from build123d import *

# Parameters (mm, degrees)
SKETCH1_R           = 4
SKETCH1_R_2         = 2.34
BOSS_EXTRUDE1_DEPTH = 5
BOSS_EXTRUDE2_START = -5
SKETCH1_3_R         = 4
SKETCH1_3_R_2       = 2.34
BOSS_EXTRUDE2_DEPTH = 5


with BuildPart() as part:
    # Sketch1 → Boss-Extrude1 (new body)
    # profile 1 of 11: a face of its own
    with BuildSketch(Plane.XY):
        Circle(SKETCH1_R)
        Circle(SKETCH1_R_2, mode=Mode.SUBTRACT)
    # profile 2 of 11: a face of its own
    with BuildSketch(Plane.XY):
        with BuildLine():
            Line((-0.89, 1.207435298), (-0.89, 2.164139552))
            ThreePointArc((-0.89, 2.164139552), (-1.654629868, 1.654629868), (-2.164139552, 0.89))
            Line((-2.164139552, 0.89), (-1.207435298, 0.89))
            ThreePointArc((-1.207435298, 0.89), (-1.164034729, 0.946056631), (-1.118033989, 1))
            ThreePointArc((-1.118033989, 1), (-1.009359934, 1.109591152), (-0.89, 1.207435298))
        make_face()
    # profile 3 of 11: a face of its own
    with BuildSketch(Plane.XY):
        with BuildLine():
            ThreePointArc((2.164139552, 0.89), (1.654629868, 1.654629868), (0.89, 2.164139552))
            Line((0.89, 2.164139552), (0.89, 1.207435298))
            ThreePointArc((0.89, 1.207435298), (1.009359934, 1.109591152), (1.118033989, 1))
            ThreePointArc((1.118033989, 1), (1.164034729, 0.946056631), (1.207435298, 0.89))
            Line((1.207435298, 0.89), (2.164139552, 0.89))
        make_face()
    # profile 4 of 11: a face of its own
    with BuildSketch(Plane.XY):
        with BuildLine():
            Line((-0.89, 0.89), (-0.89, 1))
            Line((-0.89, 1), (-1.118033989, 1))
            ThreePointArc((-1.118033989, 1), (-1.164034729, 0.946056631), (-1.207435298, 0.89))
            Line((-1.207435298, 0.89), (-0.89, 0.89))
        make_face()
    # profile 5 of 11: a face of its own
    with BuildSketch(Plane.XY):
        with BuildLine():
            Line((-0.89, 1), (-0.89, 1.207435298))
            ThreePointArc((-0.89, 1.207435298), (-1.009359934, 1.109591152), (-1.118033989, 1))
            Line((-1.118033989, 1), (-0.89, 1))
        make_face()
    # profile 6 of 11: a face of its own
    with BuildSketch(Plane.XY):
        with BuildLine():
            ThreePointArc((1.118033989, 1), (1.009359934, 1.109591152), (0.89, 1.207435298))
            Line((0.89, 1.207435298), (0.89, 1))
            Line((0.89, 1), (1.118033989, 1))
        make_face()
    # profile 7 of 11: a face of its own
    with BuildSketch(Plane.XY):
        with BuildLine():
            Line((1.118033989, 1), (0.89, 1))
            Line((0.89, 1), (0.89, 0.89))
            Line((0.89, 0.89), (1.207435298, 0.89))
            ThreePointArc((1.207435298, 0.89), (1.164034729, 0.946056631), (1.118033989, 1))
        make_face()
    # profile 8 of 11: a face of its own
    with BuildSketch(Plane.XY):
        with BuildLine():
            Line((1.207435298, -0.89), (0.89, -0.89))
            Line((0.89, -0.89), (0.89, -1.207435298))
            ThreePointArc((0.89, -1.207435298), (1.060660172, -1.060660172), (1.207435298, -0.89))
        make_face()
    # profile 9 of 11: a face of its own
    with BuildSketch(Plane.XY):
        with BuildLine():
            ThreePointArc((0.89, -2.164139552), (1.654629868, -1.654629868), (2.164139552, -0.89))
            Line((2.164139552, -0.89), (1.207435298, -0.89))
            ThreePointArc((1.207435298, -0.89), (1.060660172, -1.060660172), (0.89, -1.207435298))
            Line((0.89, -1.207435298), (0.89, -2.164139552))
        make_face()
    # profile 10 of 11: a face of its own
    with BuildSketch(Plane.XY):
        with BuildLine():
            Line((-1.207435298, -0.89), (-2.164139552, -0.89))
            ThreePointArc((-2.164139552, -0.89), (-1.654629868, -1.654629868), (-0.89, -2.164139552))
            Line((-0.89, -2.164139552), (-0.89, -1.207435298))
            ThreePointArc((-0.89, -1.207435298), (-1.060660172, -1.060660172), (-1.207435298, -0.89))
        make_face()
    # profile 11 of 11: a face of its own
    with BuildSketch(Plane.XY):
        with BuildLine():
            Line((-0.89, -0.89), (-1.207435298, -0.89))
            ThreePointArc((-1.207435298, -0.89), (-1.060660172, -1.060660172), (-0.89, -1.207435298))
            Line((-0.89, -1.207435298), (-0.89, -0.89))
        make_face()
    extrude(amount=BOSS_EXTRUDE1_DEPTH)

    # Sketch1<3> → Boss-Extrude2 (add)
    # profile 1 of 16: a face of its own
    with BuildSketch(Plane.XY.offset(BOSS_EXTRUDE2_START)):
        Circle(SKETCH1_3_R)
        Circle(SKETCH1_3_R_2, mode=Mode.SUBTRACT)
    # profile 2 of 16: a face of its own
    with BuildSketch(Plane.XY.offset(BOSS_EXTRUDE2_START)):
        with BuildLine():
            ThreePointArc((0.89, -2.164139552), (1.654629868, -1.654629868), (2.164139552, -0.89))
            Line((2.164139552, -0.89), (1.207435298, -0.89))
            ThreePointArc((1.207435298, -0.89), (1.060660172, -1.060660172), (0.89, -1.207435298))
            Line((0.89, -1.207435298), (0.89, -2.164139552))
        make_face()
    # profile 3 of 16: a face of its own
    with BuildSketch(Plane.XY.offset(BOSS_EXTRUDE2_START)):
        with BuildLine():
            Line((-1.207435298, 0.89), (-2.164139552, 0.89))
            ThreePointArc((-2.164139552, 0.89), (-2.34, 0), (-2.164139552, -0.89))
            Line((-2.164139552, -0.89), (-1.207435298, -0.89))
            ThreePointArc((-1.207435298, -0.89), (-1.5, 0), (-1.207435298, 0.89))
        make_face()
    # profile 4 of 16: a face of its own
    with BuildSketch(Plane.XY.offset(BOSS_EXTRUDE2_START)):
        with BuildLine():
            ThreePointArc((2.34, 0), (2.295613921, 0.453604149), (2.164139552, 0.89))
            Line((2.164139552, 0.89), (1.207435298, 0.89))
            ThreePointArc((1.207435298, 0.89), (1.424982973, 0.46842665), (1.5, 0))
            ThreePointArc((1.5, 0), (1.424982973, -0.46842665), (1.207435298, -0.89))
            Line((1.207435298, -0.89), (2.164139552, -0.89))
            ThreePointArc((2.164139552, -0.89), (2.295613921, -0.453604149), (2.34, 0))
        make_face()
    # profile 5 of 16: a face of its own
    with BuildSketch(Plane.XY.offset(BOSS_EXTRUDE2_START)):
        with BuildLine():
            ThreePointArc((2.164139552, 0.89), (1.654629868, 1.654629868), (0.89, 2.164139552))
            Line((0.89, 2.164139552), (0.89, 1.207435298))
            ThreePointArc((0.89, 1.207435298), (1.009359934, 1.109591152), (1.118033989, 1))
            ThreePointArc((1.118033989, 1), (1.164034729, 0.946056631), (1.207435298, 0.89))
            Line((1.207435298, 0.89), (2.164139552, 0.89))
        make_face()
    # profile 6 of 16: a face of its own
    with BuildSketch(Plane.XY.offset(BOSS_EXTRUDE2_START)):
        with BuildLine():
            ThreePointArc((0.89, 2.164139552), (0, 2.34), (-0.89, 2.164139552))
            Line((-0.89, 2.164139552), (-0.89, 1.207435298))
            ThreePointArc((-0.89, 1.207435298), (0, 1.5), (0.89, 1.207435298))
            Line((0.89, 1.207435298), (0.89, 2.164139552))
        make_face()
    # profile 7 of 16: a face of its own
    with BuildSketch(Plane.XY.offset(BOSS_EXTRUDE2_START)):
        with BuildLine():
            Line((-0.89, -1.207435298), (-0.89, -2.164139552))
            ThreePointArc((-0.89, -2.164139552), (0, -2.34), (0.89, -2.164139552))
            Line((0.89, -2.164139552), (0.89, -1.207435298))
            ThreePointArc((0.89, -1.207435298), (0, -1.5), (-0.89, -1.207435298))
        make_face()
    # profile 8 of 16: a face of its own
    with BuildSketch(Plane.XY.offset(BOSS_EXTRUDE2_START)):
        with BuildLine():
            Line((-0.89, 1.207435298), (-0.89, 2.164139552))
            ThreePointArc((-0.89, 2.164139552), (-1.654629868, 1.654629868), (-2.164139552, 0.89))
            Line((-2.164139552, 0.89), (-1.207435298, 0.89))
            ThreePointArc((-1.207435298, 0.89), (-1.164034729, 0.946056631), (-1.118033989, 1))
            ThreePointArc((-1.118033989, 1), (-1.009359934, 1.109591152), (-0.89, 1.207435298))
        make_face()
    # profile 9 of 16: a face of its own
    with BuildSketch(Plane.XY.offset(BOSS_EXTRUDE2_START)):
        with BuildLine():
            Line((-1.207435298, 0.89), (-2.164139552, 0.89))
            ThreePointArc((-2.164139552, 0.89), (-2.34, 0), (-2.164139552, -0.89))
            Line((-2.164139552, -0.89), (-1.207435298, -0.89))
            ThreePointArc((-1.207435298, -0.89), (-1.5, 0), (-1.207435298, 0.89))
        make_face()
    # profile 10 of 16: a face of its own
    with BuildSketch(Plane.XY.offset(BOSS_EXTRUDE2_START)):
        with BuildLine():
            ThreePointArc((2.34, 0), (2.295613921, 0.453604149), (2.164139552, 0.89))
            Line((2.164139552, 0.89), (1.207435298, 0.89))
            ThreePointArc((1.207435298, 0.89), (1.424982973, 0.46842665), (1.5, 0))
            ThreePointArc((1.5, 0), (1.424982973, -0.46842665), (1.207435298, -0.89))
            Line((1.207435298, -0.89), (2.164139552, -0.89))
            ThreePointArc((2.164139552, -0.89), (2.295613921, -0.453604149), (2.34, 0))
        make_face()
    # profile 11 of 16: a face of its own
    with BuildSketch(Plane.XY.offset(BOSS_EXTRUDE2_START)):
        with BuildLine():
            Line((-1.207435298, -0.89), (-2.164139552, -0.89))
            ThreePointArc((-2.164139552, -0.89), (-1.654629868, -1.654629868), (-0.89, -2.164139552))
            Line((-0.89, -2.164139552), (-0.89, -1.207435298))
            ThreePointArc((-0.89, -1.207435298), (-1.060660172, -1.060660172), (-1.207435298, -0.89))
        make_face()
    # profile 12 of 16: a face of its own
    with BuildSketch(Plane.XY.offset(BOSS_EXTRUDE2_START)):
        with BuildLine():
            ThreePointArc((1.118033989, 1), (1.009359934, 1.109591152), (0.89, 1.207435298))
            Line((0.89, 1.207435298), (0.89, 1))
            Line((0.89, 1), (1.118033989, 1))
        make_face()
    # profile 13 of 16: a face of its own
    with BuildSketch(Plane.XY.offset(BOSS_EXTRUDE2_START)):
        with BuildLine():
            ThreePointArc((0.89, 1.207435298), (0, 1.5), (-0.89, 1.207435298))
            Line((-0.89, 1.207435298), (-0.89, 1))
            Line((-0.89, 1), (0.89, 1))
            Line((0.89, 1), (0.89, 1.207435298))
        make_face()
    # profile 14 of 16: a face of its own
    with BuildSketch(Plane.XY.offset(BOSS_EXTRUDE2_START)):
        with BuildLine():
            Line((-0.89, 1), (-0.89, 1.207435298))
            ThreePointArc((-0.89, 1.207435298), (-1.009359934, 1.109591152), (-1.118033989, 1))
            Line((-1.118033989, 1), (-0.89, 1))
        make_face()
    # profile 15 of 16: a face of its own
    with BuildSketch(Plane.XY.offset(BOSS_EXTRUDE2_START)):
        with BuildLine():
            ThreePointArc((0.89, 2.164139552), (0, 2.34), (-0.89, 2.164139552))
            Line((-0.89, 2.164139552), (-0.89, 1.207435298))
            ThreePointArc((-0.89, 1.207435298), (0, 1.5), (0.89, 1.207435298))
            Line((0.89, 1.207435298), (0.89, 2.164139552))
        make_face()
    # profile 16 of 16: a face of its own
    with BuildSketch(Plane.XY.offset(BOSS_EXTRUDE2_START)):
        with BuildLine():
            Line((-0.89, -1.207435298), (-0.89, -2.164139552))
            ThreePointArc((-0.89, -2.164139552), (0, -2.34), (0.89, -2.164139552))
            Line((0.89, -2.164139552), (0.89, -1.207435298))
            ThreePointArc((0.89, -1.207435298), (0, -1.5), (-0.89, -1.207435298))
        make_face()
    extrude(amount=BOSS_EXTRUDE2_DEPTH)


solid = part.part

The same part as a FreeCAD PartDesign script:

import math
import FreeCAD as App
import Part
import Sketcher
from FreeCAD import Vector

doc = App.newDocument("Part")
params = doc.addObject("Spreadsheet::Sheet", "Params")
for row, (alias, value) in enumerate([
    ("sketch1_diameter", "8 mm"),
    ("sketch1_radius", "2.34 mm"),
    ("pad1_length", "5 mm"),
    ("sketch2_diameter", "8 mm"),
    ("sketch2_radius", "1.5 mm"),
    ("pad2_length", "5 mm"),
], start=1):
    params.set(f"A{row}", alias)
    params.set(f"B{row}", "=" + value)
    params.setAlias(f"B{row}", alias)

body = doc.addObject("PartDesign::Body", "Body")

# Sketch on XY plane
sketch1 = doc.addObject("Sketcher::SketchObject", "Sketch")
body.addObject(sketch1)
sketch1.AttachmentSupport = (doc.XY_Plane, [""])
sketch1.MapMode = "FlatFace"
sketch1.addGeometry([
    Part.Circle(Vector(0, 0, 0), Vector(0, 0, 1), 4),  # 0
    Part.ArcOfCircle(Part.Circle(Vector(0, 0, 0), Vector(0, 0, 1), 2.34), math.radians(-22.354861), math.radians(22.354861)),  # 1
    Part.LineSegment(Vector(2.16414, -0.89, 0), Vector(0.89, -0.89, 0)),  # 2
    Part.LineSegment(Vector(0.89, -0.89, 0), Vector(0.89, -2.16414, 0)),  # 3
    Part.ArcOfCircle(Part.Circle(Vector(0, 0, 0), Vector(0, 0, 1), 2.34), math.radians(-112.354861), math.radians(-67.645139)),  # 4
    Part.LineSegment(Vector(-0.89, -2.16414, 0), Vector(-0.89, -0.89, 0)),  # 5
    Part.LineSegment(Vector(-0.89, -0.89, 0), Vector(-2.16414, -0.89, 0)),  # 6
    Part.ArcOfCircle(Part.Circle(Vector(0, 0, 0), Vector(0, 0, 1), 2.34), math.radians(157.645139), math.radians(202.354861)),  # 7
    Part.LineSegment(Vector(-2.16414, 0.89, 0), Vector(-0.89, 0.89, 0)),  # 8
    Part.LineSegment(Vector(-0.89, 0.89, 0), Vector(-0.89, 2.16414, 0)),  # 9
    Part.ArcOfCircle(Part.Circle(Vector(0, 0, 0), Vector(0, 0, 1), 2.34), math.radians(67.645139), math.radians(112.354861)),  # 10
    Part.LineSegment(Vector(0.89, 2.16414, 0), Vector(0.89, 0.89, 0)),  # 11
    Part.LineSegment(Vector(0.89, 0.89, 0), Vector(2.16414, 0.89, 0)),  # 12
], False)
sketch1.addConstraint([
    Sketcher.Constraint("Coincident", 1, 1, 2, 1),
    Sketcher.Constraint("Coincident", 2, 2, 3, 1),
    Sketcher.Constraint("Coincident", 3, 2, 4, 2),
    Sketcher.Constraint("Coincident", 4, 1, 5, 1),
    Sketcher.Constraint("Coincident", 5, 2, 6, 1),
    Sketcher.Constraint("Coincident", 6, 2, 7, 2),
    Sketcher.Constraint("Coincident", 7, 1, 8, 1),
    Sketcher.Constraint("Coincident", 8, 2, 9, 1),
    Sketcher.Constraint("Coincident", 9, 2, 10, 2),
    Sketcher.Constraint("Coincident", 10, 1, 11, 1),
    Sketcher.Constraint("Coincident", 11, 2, 12, 1),
    Sketcher.Constraint("Coincident", 12, 2, 1, 2),
    Sketcher.Constraint("Horizontal", 2),
    Sketcher.Constraint("Vertical", 3),
    Sketcher.Constraint("Vertical", 5),
    Sketcher.Constraint("Horizontal", 6),
    Sketcher.Constraint("Horizontal", 8),
    Sketcher.Constraint("Vertical", 9),
    Sketcher.Constraint("Vertical", 11),
    Sketcher.Constraint("Horizontal", 12),
    Sketcher.Constraint("Coincident", 0, 3, -1, 1),
    Sketcher.Constraint("Coincident", 1, 3, -1, 1),
    Sketcher.Constraint("Coincident", 4, 3, -1, 1),
    Sketcher.Constraint("Coincident", 7, 3, -1, 1),
    Sketcher.Constraint("Coincident", 10, 3, -1, 1),
    Sketcher.Constraint("Equal", 1, 4),
    Sketcher.Constraint("Equal", 4, 7),
    Sketcher.Constraint("Equal", 7, 10),
    Sketcher.Constraint("Symmetric", 2, 2, 8, 2, -1, 1),
    Sketcher.Constraint("Symmetric", 5, 2, 11, 2, -1, 1),
    Sketcher.Constraint("Symmetric", 2, 2, 5, 2, -2),
    Sketcher.Constraint("Equal", 12, 3),
    Sketcher.Constraint("Diameter", 0, 8.0),
    Sketcher.Constraint("Radius", 1, 2.34),
    Sketcher.Constraint("DistanceY", 1, 1, -1, 1, 0.89),
])
sketch1.setExpression("Constraints[32]", "Params.sketch1_diameter")
sketch1.setExpression("Constraints[33]", "Params.sketch1_radius")
pad1 = doc.addObject("PartDesign::Pad", "Pad")
body.addObject(pad1)
pad1.Profile = sketch1
pad1.setExpression("Length", "Params.pad1_length")

# Sketch on XY plane
sketch2 = doc.addObject("Sketcher::SketchObject", "Sketch001")
body.addObject(sketch2)
sketch2.AttachmentSupport = (doc.XY_Plane, [""])
sketch2.MapMode = "FlatFace"
sketch2.AttachmentOffset = App.Placement(Vector(0, 0, -5), App.Rotation())
sketch2.addGeometry([
    Part.Circle(Vector(0, 0, 0), Vector(0, 0, 1), 4),  # 0
    Part.ArcOfCircle(Part.Circle(Vector(0, 0, 0), Vector(0, 0, 1), 1.5), math.radians(0), math.radians(36.39391)),  # 1
    Part.ArcOfCircle(Part.Circle(Vector(0, 0, 0), Vector(0, 0, 1), 1.5), math.radians(-36.39391), math.radians(0)),  # 2
    Part.ArcOfCircle(Part.Circle(Vector(0, 0, 0), Vector(0, 0, 1), 1.5), math.radians(-53.60609), math.radians(-36.39391)),  # 3
    Part.ArcOfCircle(Part.Circle(Vector(0, 0, 0), Vector(0, 0, 1), 1.5), math.radians(-126.39391), math.radians(-53.60609)),  # 4
    Part.ArcOfCircle(Part.Circle(Vector(0, 0, 0), Vector(0, 0, 1), 1.5), math.radians(-143.60609), math.radians(-126.39391)),  # 5
    Part.ArcOfCircle(Part.Circle(Vector(0, 0, 0), Vector(0, 0, 1), 1.5), math.radians(143.60609), math.radians(216.39391)),  # 6
    Part.ArcOfCircle(Part.Circle(Vector(0, 0, 0), Vector(0, 0, 1), 1.5), math.radians(138.189685), math.radians(143.60609)),  # 7
    Part.LineSegment(Vector(-1.118034, 1, 0), Vector(1.118034, 1, 0)),  # 8
    Part.ArcOfCircle(Part.Circle(Vector(0, 0, 0), Vector(0, 0, 1), 1.5), math.radians(36.39391), math.radians(41.810315)),  # 9
], False)
sketch2.addConstraint([
    Sketcher.Constraint("Tangent", 1, 1, 2, 2),
    Sketcher.Constraint("Tangent", 2, 1, 3, 2),
    Sketcher.Constraint("Tangent", 3, 1, 4, 2),
    Sketcher.Constraint("Tangent", 4, 1, 5, 2),
    Sketcher.Constraint("Tangent", 5, 1, 6, 2),
    Sketcher.Constraint("Tangent", 6, 1, 7, 2),
    Sketcher.Constraint("Coincident", 7, 1, 8, 1),
    Sketcher.Constraint("Coincident", 8, 2, 9, 2),
    Sketcher.Constraint("Tangent", 9, 1, 1, 2),
    Sketcher.Constraint("Horizontal", 8),
    Sketcher.Constraint("Coincident", 0, 3, -1, 1),
    Sketcher.Constraint("Coincident", 1, 3, -1, 1),
    Sketcher.Constraint("Coincident", 3, 3, -1, 1),
    Sketcher.Constraint("Coincident", 5, 3, -1, 1),
    Sketcher.Constraint("Coincident", 7, 3, -1, 1),
    Sketcher.Constraint("Equal", 7, 9),
    Sketcher.Constraint("PointOnObject", 1, 1, -1),
    Sketcher.Constraint("Horizontal", 3, 1, 4, 1),
    Sketcher.Constraint("Horizontal", 2, 1, 5, 1),
    Sketcher.Constraint("Horizontal", 6, 1, 9, 1),
    Sketcher.Constraint("Vertical", 5, 1, 6, 1),
    Sketcher.Constraint("Diameter", 0, 8.0),
    Sketcher.Constraint("Radius", 1, 1.5),
    Sketcher.Constraint("DistanceY", -1, 1, 7, 1, 1.0),
    Sketcher.Constraint("DistanceY", 2, 1, -1, 1, 0.89),
    Sketcher.Constraint("DistanceX", -1, 1, 3, 1, 0.89),
])
sketch2.setExpression("Constraints[21]", "Params.sketch2_diameter")
sketch2.setExpression("Constraints[22]", "Params.sketch2_radius")
pad2 = doc.addObject("PartDesign::Pad", "Pad001")
body.addObject(pad2)
pad2.Profile = sketch2
pad2.setExpression("Length", "Params.pad2_length")

doc.recompute()
